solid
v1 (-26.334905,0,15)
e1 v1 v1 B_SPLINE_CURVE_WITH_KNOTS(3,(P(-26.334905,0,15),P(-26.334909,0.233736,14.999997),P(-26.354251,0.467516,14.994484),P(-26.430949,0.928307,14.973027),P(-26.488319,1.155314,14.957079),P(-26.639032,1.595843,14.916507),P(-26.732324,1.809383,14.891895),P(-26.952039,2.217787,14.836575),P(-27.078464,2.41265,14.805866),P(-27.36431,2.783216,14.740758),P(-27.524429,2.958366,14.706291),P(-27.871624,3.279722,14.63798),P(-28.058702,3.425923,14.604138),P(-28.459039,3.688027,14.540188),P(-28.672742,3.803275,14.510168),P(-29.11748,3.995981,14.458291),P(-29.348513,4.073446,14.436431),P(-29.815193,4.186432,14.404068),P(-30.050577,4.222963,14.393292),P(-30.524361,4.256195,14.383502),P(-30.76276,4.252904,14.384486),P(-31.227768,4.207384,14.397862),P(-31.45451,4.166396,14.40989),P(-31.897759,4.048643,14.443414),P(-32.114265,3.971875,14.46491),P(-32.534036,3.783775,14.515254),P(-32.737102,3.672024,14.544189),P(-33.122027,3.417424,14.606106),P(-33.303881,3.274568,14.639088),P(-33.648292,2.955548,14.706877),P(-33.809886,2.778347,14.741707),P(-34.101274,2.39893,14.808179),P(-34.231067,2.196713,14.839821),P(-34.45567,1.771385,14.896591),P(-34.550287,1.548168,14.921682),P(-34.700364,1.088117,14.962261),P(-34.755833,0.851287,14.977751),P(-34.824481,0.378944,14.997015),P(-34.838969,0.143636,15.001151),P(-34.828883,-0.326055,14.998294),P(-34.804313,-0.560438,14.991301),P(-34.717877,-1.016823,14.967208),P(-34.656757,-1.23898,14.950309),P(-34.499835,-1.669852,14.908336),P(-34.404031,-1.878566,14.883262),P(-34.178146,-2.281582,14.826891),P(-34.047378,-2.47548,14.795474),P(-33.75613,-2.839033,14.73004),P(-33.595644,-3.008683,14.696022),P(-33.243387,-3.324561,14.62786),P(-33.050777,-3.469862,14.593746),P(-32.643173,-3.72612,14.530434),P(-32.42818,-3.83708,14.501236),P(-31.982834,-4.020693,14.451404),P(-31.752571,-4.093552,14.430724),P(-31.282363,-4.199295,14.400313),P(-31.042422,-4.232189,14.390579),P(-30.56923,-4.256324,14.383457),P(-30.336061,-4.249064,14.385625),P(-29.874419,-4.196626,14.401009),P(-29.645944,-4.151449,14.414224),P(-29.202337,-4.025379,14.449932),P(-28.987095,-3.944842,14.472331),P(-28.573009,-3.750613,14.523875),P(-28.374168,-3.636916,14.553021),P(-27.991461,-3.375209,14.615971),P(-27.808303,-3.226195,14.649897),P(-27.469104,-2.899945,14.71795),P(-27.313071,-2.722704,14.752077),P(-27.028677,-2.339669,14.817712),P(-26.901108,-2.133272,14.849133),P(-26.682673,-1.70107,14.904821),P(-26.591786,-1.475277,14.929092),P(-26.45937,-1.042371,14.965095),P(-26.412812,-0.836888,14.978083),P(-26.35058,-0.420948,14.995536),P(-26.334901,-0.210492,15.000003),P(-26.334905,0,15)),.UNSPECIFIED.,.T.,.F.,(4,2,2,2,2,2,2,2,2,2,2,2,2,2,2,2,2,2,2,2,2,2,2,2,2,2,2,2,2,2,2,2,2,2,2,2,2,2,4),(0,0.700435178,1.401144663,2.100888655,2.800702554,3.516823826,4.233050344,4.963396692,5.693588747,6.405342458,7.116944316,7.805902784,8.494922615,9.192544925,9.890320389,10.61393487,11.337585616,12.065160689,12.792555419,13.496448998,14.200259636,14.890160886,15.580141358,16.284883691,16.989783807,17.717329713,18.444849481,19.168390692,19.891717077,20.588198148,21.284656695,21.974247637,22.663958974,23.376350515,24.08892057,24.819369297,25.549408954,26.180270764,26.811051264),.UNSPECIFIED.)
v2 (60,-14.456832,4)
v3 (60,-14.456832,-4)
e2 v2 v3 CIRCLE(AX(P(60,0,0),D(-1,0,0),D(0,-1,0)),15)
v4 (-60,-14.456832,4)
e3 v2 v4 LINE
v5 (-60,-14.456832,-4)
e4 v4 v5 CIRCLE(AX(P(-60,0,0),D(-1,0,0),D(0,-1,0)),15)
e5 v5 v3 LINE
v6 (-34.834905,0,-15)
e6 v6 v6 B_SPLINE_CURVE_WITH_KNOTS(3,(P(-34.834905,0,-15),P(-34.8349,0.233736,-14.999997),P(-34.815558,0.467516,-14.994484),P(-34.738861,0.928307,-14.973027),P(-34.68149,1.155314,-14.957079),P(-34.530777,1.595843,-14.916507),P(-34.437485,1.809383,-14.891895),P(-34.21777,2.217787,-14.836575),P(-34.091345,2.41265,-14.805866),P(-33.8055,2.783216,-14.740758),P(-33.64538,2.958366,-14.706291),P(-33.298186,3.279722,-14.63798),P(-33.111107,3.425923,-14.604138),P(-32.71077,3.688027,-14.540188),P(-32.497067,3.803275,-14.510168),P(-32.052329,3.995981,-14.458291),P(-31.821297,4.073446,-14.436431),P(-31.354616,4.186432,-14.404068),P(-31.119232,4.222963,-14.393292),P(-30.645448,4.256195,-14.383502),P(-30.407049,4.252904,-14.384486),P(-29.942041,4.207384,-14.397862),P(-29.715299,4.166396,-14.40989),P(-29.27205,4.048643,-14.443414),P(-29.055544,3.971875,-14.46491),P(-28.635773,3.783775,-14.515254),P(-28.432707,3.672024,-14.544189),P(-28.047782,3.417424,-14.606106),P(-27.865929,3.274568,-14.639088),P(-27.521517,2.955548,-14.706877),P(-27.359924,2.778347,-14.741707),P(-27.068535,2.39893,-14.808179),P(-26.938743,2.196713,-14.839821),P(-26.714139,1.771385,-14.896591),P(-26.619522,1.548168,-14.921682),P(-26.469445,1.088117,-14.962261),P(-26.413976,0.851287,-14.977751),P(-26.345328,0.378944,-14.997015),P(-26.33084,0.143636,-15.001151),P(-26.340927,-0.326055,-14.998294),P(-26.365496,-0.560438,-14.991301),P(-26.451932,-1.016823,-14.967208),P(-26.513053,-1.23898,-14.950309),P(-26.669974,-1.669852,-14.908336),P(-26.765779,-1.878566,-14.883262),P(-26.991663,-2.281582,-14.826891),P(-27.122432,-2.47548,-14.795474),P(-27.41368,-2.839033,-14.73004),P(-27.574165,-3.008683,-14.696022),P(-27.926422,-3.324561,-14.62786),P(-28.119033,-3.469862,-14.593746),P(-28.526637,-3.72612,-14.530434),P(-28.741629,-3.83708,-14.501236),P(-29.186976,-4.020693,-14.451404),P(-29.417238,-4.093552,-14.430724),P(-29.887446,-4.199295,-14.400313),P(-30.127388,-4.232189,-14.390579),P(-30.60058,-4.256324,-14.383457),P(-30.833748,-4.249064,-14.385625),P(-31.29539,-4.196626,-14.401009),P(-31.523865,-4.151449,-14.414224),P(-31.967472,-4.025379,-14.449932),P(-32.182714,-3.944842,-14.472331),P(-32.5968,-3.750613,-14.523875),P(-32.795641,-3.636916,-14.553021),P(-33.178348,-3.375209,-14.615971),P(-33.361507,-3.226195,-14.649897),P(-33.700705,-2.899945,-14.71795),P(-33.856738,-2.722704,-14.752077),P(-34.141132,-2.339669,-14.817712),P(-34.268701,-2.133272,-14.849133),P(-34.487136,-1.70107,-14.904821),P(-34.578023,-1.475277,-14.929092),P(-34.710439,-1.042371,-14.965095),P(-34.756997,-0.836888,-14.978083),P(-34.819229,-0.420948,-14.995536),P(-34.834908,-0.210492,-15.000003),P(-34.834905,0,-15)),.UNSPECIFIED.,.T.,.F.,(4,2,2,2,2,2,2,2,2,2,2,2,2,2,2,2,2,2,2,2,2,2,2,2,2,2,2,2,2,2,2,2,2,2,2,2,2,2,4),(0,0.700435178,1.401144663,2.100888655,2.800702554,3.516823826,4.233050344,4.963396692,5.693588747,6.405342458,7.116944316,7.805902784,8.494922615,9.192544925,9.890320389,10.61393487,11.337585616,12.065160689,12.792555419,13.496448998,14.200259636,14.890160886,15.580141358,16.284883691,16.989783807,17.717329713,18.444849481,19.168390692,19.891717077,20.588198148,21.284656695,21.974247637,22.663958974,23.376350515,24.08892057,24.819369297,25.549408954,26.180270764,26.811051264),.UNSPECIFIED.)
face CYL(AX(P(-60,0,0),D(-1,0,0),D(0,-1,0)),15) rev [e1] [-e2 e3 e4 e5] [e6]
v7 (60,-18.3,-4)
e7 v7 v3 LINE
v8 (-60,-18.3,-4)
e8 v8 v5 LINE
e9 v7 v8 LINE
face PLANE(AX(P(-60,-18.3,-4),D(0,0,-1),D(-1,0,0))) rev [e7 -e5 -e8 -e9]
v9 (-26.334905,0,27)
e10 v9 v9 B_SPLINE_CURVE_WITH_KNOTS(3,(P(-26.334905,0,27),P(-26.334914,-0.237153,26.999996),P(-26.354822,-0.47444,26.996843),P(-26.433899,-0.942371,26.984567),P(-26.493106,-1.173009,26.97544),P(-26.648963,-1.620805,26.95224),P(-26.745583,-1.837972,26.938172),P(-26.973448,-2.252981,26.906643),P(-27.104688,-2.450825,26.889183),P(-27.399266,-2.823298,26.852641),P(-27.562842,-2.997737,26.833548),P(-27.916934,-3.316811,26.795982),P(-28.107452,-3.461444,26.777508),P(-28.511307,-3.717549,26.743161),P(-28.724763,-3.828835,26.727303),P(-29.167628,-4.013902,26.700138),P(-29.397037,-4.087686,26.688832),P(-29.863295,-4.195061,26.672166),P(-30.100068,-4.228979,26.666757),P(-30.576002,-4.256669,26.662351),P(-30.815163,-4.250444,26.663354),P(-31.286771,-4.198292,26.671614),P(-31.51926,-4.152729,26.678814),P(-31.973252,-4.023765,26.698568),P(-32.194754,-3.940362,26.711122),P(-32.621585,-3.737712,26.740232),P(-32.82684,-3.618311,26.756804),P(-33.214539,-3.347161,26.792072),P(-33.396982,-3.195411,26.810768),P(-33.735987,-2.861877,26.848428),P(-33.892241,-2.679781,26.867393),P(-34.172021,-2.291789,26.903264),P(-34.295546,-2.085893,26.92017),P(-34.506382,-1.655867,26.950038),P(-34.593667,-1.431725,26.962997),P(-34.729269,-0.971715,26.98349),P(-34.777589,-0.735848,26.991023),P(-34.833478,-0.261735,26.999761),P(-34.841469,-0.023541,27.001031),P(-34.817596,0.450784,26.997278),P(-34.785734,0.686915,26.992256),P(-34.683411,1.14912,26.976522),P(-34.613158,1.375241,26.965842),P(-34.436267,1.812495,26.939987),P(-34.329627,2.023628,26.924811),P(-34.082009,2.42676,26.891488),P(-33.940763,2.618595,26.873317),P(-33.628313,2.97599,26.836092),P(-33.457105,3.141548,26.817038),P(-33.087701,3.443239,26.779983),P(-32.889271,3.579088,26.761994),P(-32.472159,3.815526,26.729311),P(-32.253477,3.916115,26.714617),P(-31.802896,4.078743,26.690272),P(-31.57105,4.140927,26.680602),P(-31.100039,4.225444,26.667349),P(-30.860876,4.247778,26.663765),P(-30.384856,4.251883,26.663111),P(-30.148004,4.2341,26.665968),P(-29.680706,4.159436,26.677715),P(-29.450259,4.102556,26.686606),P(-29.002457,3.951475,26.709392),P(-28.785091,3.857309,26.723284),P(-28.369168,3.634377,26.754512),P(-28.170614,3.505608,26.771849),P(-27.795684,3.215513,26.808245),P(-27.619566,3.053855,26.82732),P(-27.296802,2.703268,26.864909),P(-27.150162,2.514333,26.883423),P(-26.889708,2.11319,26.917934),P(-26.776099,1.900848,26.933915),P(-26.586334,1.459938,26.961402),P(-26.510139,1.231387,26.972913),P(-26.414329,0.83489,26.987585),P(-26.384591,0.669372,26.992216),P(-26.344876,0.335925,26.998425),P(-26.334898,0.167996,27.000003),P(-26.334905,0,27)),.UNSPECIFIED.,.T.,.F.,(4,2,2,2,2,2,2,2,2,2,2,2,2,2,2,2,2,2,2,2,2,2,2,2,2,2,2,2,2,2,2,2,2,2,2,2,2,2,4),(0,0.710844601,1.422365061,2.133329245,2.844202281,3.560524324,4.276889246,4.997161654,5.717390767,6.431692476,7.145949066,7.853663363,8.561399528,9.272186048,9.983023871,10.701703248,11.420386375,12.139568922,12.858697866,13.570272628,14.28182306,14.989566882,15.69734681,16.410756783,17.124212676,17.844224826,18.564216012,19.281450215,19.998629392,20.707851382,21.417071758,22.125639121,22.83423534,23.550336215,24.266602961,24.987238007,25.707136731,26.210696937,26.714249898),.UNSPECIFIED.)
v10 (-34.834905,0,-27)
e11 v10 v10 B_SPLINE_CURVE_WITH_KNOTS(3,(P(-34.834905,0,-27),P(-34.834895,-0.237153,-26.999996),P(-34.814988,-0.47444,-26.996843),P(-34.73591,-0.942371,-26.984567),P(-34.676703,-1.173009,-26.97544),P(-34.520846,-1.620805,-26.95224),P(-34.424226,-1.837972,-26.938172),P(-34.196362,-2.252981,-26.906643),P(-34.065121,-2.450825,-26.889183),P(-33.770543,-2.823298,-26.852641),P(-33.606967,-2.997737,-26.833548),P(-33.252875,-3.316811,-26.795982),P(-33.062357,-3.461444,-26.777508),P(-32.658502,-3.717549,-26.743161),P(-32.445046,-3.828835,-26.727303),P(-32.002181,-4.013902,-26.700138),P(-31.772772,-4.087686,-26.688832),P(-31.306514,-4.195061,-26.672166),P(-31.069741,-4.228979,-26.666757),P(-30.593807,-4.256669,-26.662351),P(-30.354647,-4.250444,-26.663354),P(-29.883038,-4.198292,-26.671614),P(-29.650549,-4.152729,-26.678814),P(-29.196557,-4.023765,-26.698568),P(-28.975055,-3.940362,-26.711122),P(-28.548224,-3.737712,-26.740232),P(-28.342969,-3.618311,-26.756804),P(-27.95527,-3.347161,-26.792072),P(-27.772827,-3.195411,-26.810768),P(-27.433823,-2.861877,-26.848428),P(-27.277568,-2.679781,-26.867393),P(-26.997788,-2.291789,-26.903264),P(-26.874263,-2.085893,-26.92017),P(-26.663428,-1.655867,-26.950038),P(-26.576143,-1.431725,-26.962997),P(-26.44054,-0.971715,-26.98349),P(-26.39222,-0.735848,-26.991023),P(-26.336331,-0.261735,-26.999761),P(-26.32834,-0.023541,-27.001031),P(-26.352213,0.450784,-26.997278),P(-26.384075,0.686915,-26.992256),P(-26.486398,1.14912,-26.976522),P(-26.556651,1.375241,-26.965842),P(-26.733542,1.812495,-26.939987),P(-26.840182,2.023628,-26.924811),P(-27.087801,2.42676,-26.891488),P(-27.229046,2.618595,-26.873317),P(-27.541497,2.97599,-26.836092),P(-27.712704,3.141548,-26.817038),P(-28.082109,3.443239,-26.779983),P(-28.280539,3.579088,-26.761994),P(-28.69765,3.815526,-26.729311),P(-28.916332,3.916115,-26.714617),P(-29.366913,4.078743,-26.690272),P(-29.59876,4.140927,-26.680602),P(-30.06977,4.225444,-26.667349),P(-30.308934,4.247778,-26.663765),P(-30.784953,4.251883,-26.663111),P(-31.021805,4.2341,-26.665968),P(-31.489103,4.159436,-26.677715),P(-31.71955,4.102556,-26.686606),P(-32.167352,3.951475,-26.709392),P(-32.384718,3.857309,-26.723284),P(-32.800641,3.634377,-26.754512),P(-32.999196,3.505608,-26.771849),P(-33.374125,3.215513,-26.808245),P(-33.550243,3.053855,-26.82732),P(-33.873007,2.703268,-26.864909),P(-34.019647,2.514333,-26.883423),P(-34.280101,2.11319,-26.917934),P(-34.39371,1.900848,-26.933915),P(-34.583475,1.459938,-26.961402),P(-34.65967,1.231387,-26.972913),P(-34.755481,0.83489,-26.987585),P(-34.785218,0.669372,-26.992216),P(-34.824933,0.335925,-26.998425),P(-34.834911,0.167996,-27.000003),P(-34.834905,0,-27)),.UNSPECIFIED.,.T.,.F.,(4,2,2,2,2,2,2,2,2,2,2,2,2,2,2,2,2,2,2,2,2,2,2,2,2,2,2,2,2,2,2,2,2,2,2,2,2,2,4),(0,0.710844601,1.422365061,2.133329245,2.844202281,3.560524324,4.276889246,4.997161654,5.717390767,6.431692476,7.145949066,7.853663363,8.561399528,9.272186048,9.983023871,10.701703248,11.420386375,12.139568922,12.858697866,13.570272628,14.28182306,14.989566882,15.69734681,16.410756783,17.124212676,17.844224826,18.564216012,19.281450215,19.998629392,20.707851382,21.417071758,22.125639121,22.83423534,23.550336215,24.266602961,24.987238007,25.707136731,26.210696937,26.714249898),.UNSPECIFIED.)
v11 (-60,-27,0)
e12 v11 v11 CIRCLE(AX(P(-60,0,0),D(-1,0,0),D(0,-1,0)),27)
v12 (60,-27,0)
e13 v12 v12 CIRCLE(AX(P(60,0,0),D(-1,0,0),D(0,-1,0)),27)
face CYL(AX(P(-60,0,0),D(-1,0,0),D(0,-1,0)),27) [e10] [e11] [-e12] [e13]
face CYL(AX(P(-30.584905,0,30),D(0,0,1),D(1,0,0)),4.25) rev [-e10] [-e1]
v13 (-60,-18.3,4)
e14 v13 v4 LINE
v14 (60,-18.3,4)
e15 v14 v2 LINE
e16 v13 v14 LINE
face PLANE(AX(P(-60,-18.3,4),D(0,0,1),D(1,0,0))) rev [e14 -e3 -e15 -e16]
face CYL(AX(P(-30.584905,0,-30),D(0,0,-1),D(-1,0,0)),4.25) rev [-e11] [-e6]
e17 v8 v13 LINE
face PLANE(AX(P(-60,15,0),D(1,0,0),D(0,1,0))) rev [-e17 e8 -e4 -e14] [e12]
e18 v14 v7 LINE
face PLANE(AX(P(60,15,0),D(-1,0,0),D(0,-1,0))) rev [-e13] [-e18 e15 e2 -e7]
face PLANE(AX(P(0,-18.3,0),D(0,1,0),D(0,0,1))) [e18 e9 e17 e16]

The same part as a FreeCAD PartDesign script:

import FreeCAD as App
import Part
import Sketcher
Q = App.Units.Quantity


def add_polygon(sketch, points):
    """Adds a closed chain of lines whose ends are joined by coincident constraints."""
    first, n = sketch.GeometryCount, len(points)
    for a, b in zip(points, points[1:] + points[:1]):
        sketch.addGeometry(Part.LineSegment(App.Vector(*a, 0), App.Vector(*b, 0)), False)
    for i in range(n):
        sketch.addConstraint(Sketcher.Constraint("Coincident", first + i, 2, first + (i + 1) % n, 1))

doc = App.newDocument("Part")
body = doc.addObject("PartDesign::Body", "Body")

sketch1 = body.newObject("Sketcher::SketchObject", "Sketch")
sketch1.AttachmentSupport = (doc.getObject("XY_Plane"), [""])
sketch1.MapMode = "FlatFace"
add_polygon(sketch1, [(-60, 27), (-60, 15), (60, 15), (60, 27)])
sketch1.addConstraint([
    Sketcher.Constraint("Vertical", 0),
    Sketcher.Constraint("Horizontal", 1),
    Sketcher.Constraint("Vertical", 2),
    Sketcher.Constraint("Horizontal", 3),
    Sketcher.Constraint("DistanceX", 1, 1, 1, 2, Q("120 mm")),
    Sketcher.Constraint("DistanceY", 0, 2, 0, 1, Q("12 mm")),
    Sketcher.Constraint("DistanceX", 0, 2, -1, 1, Q("60 mm")),
    Sketcher.Constraint("DistanceY", -1, 1, 0, 2, Q("15 mm")),
])
revolution = body.newObject("PartDesign::Revolution", "Revolution")
revolution.Profile = sketch1
revolution.ReferenceAxis = (sketch1, ["H_Axis"])
revolution.Angle = 360

sketch2 = body.newObject("Sketcher::SketchObject", "Sketch001")
sketch2.AttachmentSupport = (doc.getObject("XZ_Plane"), [""])
sketch2.MapMode = "FlatFace"
add_polygon(sketch2, [(-60, -4), (-60, 4), (60, 4), (60, -4)])
sketch2.addConstraint([
    Sketcher.Constraint("Vertical", 0),
    Sketcher.Constraint("Horizontal", 1),
    Sketcher.Constraint("Vertical", 2),
    Sketcher.Constraint("Horizontal", 3),
    Sketcher.Constraint("Symmetric", 0, 2, 2, 2, -1, 1),
    Sketcher.Constraint("DistanceX", 1, 1, 1, 2, Q("120 mm")),
    Sketcher.Constraint("DistanceY", 0, 1, 0, 2, Q("8 mm")),
])
pocket1 = body.newObject("PartDesign::Pocket", "Pocket")
pocket1.Profile = sketch2
pocket1.Length = 18.3
pocket1.Reversed = True

sketch3 = body.newObject("Sketcher::SketchObject", "Sketch002")
sketch3.AttachmentSupport = (doc.getObject("YZ_Plane"), [""])
sketch3.MapMode = "FlatFace"
sketch3.AttachmentOffset = App.Placement(App.Vector(0, 0, -30.584905), App.Rotation())
add_polygon(sketch3, [(0, 7.1), (0, -30), (5, -30), (4.2, -29.2), (4.2, 4.6)])
sketch3.addConstraint([
    Sketcher.Constraint("Vertical", 0),
    Sketcher.Constraint("Horizontal", 1),
    Sketcher.Constraint("Vertical", 3),
    Sketcher.Constraint("PointOnObject", 0, 2, -2),
    Sketcher.Constraint("Angle", 2, Q("135 deg")),
    Sketcher.Constraint("Angle", 4, Q("149 deg")),
    Sketcher.Constraint("DistanceY", 0, 2, -1, 1, Q("30 mm")),
    Sketcher.Constraint("DistanceX", 1, 1, 1, 2, Q("5.025 mm")),
    Sketcher.Constraint("DistanceY", 3, 1, 3, 2, Q("33.785 mm")),
    Sketcher.Constraint("DistanceX", -1, 1, 2, 2, Q("4.25 mm")),
])
groove = body.newObject("PartDesign::Groove", "Groove")
groove.Profile = sketch3
groove.ReferenceAxis = (sketch3, ["V_Axis"])
groove.Angle = 360
doc.recompute()

mirrored = body.newObject("PartDesign::Mirrored", "Mirrored")
mirrored.Originals = [groove]
mirrored.MirrorPlane = (doc.getObject("XY_Plane"), [""])
body.Tip = mirrored

doc.recompute()
